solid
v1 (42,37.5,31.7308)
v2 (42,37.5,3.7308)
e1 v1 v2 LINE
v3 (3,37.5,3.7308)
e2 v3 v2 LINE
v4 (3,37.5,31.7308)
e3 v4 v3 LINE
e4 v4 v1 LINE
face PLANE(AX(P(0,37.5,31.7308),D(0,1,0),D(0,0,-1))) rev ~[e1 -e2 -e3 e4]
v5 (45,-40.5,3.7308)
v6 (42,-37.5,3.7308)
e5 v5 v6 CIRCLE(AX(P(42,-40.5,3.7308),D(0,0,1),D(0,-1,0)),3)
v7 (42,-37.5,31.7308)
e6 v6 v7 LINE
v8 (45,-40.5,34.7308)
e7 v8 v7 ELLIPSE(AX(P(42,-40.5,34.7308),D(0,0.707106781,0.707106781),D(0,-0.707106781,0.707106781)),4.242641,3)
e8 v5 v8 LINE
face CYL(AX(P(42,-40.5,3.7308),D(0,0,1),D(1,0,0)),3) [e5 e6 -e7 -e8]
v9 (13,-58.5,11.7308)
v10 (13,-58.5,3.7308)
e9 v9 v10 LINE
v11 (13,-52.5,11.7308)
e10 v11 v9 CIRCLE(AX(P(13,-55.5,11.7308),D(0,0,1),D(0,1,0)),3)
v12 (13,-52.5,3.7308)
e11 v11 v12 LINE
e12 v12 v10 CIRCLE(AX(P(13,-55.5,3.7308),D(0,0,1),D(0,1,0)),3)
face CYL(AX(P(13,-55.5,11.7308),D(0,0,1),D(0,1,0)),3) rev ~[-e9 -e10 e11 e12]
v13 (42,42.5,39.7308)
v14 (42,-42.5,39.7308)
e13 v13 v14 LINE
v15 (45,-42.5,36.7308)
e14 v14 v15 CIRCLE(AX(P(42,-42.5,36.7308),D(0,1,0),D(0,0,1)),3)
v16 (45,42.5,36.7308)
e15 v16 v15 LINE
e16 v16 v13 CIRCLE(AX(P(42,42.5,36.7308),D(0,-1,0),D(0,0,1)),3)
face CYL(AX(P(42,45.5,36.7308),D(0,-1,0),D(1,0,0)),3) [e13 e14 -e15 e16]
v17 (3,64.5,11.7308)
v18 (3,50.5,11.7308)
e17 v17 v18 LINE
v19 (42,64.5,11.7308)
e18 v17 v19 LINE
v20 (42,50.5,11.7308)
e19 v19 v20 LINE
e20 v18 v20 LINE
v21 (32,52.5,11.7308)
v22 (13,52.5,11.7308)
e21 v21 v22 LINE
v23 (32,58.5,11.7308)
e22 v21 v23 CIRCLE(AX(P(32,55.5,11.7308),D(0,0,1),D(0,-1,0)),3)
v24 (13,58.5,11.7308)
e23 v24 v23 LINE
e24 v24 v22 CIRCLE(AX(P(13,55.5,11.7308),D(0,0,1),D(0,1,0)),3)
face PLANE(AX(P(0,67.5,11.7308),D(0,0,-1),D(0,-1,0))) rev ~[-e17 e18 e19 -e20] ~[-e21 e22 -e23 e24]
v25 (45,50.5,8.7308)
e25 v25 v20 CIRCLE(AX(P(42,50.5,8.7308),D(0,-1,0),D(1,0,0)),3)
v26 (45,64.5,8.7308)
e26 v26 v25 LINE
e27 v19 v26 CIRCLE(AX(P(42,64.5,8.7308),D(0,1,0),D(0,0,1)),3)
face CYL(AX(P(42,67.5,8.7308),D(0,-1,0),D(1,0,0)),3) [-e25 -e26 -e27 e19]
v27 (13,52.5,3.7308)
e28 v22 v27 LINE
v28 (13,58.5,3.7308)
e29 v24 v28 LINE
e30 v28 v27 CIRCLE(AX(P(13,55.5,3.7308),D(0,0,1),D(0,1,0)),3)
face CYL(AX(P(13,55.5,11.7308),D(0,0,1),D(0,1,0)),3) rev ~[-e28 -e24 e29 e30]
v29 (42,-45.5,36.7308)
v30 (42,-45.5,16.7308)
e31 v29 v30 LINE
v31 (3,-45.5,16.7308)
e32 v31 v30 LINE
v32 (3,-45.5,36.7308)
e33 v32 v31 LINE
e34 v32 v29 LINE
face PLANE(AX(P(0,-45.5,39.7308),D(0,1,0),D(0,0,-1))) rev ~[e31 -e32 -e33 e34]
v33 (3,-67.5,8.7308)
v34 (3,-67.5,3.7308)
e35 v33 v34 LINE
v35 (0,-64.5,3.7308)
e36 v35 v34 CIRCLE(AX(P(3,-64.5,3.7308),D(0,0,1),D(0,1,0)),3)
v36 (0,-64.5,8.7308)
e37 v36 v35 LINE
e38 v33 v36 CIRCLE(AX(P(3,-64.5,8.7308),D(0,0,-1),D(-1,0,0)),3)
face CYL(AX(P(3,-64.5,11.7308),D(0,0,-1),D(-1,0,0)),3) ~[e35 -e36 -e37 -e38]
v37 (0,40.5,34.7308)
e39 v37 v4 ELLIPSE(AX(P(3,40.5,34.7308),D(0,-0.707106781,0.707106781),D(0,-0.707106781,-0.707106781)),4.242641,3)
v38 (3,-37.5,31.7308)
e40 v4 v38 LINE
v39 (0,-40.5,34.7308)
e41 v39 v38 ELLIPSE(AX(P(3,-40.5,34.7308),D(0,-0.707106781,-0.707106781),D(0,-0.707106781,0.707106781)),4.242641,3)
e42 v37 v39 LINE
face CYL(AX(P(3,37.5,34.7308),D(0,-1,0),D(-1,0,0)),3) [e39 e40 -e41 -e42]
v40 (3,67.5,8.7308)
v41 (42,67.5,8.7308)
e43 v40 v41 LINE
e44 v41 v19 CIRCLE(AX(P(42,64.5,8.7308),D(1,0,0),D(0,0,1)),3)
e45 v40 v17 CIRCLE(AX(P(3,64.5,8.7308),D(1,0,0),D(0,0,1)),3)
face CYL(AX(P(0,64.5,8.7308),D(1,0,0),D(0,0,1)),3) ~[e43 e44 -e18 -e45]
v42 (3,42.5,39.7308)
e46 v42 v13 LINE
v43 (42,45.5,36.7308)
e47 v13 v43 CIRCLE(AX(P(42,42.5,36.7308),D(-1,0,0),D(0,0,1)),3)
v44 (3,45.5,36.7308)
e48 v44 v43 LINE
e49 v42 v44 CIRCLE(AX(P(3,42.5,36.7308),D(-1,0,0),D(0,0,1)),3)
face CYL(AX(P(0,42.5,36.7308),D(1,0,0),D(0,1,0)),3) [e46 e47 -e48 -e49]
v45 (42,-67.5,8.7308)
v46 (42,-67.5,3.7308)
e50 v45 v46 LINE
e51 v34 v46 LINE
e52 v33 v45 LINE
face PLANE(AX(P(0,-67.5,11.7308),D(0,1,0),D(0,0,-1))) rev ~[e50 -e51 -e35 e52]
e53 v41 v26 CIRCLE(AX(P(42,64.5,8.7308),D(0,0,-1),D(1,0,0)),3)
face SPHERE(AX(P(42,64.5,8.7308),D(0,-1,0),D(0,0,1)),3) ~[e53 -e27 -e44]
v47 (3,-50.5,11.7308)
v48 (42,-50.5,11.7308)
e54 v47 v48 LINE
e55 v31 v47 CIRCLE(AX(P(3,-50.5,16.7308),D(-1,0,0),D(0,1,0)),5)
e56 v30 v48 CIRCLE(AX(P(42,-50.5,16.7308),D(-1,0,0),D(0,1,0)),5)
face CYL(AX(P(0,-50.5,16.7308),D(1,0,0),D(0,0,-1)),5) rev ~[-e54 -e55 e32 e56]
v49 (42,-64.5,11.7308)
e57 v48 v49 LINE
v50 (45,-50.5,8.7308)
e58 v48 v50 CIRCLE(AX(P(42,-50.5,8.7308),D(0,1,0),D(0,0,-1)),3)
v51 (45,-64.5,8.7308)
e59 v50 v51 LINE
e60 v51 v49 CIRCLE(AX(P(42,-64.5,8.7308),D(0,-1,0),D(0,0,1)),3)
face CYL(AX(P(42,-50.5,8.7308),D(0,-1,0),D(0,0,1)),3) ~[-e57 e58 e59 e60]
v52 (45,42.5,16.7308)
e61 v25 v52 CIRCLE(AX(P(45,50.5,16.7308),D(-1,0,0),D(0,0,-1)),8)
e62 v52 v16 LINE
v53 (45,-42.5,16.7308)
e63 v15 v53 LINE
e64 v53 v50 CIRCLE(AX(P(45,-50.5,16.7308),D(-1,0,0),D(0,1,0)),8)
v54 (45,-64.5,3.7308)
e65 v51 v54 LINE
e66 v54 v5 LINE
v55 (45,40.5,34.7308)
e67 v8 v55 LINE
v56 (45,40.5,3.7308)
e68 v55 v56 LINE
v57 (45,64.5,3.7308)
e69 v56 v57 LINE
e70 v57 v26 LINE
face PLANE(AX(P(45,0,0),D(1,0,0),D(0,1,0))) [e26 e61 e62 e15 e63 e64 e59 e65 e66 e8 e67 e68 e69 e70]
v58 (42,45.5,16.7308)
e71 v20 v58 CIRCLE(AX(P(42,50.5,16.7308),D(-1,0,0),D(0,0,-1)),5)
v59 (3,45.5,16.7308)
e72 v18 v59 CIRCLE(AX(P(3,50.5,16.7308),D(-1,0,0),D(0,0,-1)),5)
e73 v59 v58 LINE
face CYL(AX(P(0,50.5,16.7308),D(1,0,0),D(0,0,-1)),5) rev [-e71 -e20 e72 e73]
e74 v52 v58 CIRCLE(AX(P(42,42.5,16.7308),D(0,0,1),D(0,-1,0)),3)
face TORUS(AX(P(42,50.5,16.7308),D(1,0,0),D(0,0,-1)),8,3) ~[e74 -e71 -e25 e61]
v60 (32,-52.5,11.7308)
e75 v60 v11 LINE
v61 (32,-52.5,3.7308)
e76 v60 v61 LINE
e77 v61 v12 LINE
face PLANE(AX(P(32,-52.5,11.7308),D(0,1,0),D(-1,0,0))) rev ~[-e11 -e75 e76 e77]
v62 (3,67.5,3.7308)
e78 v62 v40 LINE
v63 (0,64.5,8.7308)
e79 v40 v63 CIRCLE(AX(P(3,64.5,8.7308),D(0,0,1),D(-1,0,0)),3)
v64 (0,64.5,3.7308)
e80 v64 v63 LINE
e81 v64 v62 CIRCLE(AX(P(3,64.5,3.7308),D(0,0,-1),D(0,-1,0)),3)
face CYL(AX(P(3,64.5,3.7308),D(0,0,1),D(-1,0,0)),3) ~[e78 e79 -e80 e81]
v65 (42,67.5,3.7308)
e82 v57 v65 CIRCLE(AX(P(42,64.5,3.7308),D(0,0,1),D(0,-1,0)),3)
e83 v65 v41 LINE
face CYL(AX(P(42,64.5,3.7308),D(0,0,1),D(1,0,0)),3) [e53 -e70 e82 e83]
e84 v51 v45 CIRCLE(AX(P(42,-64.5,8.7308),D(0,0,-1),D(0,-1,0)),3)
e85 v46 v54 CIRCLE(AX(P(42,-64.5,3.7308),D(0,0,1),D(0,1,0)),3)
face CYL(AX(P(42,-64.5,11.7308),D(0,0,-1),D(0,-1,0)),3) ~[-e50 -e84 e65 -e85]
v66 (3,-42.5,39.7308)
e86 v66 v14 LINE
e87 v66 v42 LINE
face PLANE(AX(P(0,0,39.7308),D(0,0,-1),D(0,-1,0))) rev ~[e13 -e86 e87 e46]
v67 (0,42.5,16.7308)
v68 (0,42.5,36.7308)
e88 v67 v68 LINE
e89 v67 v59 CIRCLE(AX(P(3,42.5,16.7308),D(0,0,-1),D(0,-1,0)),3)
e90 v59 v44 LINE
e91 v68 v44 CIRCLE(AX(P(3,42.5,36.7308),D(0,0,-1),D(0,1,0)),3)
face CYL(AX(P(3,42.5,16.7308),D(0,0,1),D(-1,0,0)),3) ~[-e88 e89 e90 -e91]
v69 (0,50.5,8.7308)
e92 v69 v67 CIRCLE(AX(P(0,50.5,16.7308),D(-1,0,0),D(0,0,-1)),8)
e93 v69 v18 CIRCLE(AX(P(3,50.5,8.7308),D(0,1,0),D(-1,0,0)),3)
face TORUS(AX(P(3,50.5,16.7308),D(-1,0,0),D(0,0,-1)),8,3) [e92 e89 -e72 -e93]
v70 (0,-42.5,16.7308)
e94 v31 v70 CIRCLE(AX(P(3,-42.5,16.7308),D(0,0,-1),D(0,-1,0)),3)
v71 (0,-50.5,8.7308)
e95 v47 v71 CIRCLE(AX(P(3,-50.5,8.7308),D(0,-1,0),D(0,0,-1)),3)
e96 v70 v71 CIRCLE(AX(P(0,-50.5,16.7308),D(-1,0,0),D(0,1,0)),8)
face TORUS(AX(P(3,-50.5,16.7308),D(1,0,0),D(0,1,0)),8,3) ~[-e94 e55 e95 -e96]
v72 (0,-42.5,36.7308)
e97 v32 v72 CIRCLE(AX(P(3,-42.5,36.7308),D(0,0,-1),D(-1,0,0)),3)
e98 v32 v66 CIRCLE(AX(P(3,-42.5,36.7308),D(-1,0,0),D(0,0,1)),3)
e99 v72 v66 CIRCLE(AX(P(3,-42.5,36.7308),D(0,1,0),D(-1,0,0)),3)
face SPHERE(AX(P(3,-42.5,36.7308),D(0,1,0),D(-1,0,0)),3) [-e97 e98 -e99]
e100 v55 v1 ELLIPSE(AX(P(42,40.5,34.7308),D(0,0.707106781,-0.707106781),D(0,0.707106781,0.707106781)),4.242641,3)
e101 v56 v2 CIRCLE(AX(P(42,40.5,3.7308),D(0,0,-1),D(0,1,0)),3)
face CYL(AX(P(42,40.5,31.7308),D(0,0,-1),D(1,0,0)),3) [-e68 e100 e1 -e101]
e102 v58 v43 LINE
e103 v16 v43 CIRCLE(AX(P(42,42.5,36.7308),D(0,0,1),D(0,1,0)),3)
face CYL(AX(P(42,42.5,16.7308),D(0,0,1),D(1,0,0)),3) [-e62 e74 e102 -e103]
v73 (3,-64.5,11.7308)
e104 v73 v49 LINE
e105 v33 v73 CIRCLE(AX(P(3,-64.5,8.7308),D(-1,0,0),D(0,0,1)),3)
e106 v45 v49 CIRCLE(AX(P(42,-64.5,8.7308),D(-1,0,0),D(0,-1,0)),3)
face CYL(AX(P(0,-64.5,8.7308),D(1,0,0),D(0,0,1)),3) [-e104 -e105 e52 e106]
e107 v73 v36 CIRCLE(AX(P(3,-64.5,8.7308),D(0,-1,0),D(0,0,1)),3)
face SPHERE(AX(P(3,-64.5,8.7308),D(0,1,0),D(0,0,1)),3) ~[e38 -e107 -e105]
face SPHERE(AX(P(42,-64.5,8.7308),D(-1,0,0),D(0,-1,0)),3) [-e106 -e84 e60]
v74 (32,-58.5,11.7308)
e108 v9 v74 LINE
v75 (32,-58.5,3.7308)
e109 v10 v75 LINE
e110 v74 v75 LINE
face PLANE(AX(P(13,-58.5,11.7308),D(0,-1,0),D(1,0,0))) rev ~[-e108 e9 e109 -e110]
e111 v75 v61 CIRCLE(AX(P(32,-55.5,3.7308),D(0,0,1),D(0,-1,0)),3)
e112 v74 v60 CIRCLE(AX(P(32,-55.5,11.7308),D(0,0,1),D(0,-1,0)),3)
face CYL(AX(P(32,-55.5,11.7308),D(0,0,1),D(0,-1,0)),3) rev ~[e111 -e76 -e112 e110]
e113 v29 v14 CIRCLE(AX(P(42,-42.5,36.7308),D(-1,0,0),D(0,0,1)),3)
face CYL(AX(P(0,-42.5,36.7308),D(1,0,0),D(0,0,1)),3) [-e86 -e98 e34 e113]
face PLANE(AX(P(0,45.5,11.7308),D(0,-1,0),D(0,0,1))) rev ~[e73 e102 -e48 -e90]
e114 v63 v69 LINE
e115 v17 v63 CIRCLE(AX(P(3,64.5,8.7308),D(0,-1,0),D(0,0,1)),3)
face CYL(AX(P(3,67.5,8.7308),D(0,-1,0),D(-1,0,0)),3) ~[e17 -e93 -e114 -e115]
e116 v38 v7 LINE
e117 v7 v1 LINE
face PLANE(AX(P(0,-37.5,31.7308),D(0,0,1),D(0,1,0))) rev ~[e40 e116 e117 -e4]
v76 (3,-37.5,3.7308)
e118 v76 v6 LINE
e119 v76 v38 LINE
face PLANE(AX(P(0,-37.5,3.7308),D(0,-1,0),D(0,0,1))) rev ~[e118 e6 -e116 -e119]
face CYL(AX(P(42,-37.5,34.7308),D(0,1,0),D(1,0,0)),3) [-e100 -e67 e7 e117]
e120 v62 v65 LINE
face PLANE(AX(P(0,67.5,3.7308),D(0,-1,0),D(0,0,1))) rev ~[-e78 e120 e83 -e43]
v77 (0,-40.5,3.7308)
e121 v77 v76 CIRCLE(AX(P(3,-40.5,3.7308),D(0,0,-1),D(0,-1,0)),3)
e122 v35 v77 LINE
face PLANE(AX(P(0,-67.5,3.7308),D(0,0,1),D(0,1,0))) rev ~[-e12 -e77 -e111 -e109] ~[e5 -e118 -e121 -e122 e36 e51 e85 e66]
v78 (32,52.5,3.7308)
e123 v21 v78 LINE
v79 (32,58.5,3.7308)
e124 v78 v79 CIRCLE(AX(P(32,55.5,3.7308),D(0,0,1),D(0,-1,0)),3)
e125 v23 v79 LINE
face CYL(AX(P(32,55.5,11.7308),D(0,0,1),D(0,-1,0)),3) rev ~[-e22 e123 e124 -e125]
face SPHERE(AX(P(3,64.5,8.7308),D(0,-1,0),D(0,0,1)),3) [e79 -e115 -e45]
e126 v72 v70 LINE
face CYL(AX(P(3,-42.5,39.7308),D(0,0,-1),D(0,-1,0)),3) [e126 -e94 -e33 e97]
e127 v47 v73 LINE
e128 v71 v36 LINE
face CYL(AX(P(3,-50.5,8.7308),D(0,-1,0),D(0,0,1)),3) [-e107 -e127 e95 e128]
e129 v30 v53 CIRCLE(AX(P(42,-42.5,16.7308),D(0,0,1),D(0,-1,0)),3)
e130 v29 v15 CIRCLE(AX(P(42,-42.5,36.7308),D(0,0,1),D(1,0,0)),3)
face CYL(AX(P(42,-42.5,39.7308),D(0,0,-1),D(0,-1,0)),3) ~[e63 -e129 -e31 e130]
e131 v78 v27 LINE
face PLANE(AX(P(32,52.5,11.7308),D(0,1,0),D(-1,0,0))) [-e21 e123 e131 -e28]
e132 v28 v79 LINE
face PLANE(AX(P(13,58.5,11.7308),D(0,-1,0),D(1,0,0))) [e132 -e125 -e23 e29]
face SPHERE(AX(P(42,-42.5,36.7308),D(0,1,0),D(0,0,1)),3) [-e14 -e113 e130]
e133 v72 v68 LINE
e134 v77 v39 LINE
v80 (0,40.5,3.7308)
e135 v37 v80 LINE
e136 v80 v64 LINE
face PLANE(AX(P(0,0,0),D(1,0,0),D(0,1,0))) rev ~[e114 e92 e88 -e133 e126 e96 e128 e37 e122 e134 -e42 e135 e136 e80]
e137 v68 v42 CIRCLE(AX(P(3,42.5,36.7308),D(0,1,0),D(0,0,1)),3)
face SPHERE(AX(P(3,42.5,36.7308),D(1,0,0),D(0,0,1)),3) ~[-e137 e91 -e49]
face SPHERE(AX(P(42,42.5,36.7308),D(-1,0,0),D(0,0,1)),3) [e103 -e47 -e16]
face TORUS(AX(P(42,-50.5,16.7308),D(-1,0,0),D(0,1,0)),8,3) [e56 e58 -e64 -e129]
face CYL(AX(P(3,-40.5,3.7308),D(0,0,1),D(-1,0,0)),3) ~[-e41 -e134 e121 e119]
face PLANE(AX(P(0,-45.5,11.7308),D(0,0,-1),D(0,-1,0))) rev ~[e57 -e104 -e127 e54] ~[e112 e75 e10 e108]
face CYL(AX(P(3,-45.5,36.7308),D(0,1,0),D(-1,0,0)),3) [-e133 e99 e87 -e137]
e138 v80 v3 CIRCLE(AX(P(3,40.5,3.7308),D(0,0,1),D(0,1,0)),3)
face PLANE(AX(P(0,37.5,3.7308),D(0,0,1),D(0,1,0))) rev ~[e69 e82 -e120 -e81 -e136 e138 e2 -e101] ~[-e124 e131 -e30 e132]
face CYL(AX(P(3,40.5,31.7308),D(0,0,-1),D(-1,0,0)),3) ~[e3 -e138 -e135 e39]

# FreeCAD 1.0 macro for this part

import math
import FreeCAD as App
import Part
import Sketcher
from FreeCAD import Vector


def edges_at(feature, points):
    """Names of the edges that pass closest to the given points."""
    edges = feature.Shape.Edges
    near = lambda p: min(range(len(edges)), key=lambda i: edges[i].distToShape(Part.Vertex(*p))[0])
    return sorted({f"Edge{near(p) + 1}" for p in points})


def add_polygon(sketch, points):
    """Adds a closed chain of lines whose ends are joined by coincident constraints."""
    first, n = sketch.GeometryCount, len(points)
    for a, b in zip(points, points[1:] + points[:1]):
        sketch.addGeometry(Part.LineSegment(App.Vector(*a, 0), App.Vector(*b, 0)), False)
    for i in range(n):
        sketch.addConstraint(Sketcher.Constraint("Coincident", first + i, 2, first + (i + 1) % n, 1))

doc = App.newDocument("Part")
body = doc.addObject("PartDesign::Body", "Body")

# Sketch on YZ plane
sketch1 = doc.addObject("Sketcher::SketchObject", "Sketch")
body.addObject(sketch1)
sketch1.AttachmentSupport = (doc.YZ_Plane, [""])
sketch1.MapMode = "FlatFace"
add_polygon(sketch1, [(-67.5, 11.7308), (-67.5, 3.7308), (-37.5, 3.7308), (-37.5, 31.7308), (37.5, 31.7308), (37.5, 3.7308), (67.5, 3.7308), (67.5, 11.7308), (45.5, 11.7308), (45.5, 39.7308), (-45.5, 39.7308), (-45.5, 11.7308)])  # lines 0-11
sketch1.addConstraint(Sketcher.Constraint("Vertical", 0))
sketch1.addConstraint(Sketcher.Constraint("Horizontal", 1))
sketch1.addConstraint(Sketcher.Constraint("Vertical", 2))
sketch1.addConstraint(Sketcher.Constraint("Horizontal", 3))
sketch1.addConstraint(Sketcher.Constraint("Vertical", 4))
sketch1.addConstraint(Sketcher.Constraint("Horizontal", 5))
sketch1.addConstraint(Sketcher.Constraint("Vertical", 6))
sketch1.addConstraint(Sketcher.Constraint("Horizontal", 7))
sketch1.addConstraint(Sketcher.Constraint("Vertical", 8))
sketch1.addConstraint(Sketcher.Constraint("Horizontal", 9))
sketch1.addConstraint(Sketcher.Constraint("Vertical", 10))
sketch1.addConstraint(Sketcher.Constraint("Horizontal", 11))
sketch1.addConstraint(Sketcher.Constraint("Symmetric", 1, 2, 4, 2, -2))
sketch1.addConstraint(Sketcher.Constraint("Symmetric", 7, 2, 10, 2, -2))
sketch1.addConstraint(Sketcher.Constraint("Equal", 1, 5))
sketch1.addConstraint(Sketcher.Constraint("Equal", 4, 8))
sketch1.addConstraint(Sketcher.Constraint("DistanceX", 1, 1, 1, 2, 30.0))
sketch1.addConstraint(Sketcher.Constraint("DistanceX", 3, 1, 3, 2, 75.0))
sketch1.addConstraint(Sketcher.Constraint("DistanceY", 0, 2, 0, 1, 8.0))
sketch1.addConstraint(Sketcher.Constraint("DistanceY", 2, 1, 2, 2, 28.0))
sketch1.addConstraint(Sketcher.Constraint("DistanceX", 4, 2, 7, 2, 8.0))
sketch1.addConstraint(Sketcher.Constraint("DistanceY", -1, 1, 0, 2, 3.7308))
pad1 = doc.addObject("PartDesign::Pad", "Pad")
body.addObject(pad1)
pad1.Profile = sketch1
pad1.Length = 45

# Sketch on XY plane
sketch2 = doc.addObject("Sketcher::SketchObject", "Sketch001")
body.addObject(sketch2)
sketch2.AttachmentSupport = (doc.XY_Plane, [""])
sketch2.MapMode = "FlatFace"
sketch2.AttachmentOffset = App.Placement(Vector(0, 0, 11.7308), App.Rotation())
sketch2.addGeometry(Part.LineSegment(Vector(13, 52.5, 0), Vector(32, 52.5, 0)), False)
sketch2.addGeometry(Part.ArcOfCircle(Part.Circle(Vector(32, 55.5, 0), Vector(0, 0, 1), 3), math.radians(-90), math.radians(90)), False)
sketch2.addGeometry(Part.LineSegment(Vector(32, 58.5, 0), Vector(13, 58.5, 0)), False)
sketch2.addGeometry(Part.ArcOfCircle(Part.Circle(Vector(13, 55.5, 0), Vector(0, 0, 1), 3), math.radians(90), math.radians(270)), False)
sketch2.addGeometry(Part.ArcOfCircle(Part.Circle(Vector(32, -55.5, 0), Vector(0, 0, 1), 3), math.radians(-90), math.radians(90)), False)
sketch2.addGeometry(Part.LineSegment(Vector(32, -52.5, 0), Vector(13, -52.5, 0)), False)
sketch2.addGeometry(Part.ArcOfCircle(Part.Circle(Vector(13, -55.5, 0), Vector(0, 0, 1), 3), math.radians(90), math.radians(270)), False)
sketch2.addGeometry(Part.LineSegment(Vector(13, -58.5, 0), Vector(32, -58.5, 0)), False)
sketch2.addConstraint(Sketcher.Constraint("Tangent", 0, 2, 1, 1))
sketch2.addConstraint(Sketcher.Constraint("Tangent", 1, 2, 2, 1))
sketch2.addConstraint(Sketcher.Constraint("Tangent", 2, 2, 3, 1))
sketch2.addConstraint(Sketcher.Constraint("Tangent", 3, 2, 0, 1))
sketch2.addConstraint(Sketcher.Constraint("Tangent", 4, 2, 5, 1))
sketch2.addConstraint(Sketcher.Constraint("Tangent", 5, 2, 6, 1))
sketch2.addConstraint(Sketcher.Constraint("Tangent", 6, 2, 7, 1))
sketch2.addConstraint(Sketcher.Constraint("Tangent", 7, 2, 4, 1))
sketch2.addConstraint(Sketcher.Constraint("Horizontal", 0))
sketch2.addConstraint(Sketcher.Constraint("Horizontal", 2))
sketch2.addConstraint(Sketcher.Constraint("Horizontal", 5))
sketch2.addConstraint(Sketcher.Constraint("Horizontal", 7))
sketch2.addConstraint(Sketcher.Constraint("Equal", 3, 4))
sketch2.addConstraint(Sketcher.Constraint("Symmetric", 1, 3, 4, 3, -1))
sketch2.addConstraint(Sketcher.Constraint("Vertical", 3, 3, 6, 3))
sketch2.addConstraint(Sketcher.Constraint("Radius", 1, 3.0))
sketch2.addConstraint(Sketcher.Constraint("DistanceX", 0, 1, 0, 2, 19.0))
sketch2.addConstraint(Sketcher.Constraint("DistanceX", -1, 1, 1, 3, 32.0))
sketch2.addConstraint(Sketcher.Constraint("DistanceY", 4, 3, 1, 3, 111.0))
pocket1 = doc.addObject("PartDesign::Pocket", "Pocket")
body.addObject(pocket1)
pocket1.Profile = sketch2
pocket1.Type = "ThroughAll"
doc.recompute()

fillet = doc.addObject("PartDesign::Fillet", "Fillet")
body.addObject(fillet)
fillet.Base = (pocket1, edges_at(pocket1, [(22.5, 45.5, 11.731), (22.5, -45.5, 11.731)]))
fillet.Radius = 5
doc.recompute()

fillet2 = doc.addObject("PartDesign::Fillet", "Fillet001")
body.addObject(fillet2)
fillet2.Base = (fillet, edges_at(fillet, [
    (22.5, 45.5, 39.731),
    (0, 0, 39.731),
    (0, 37.5, 17.731),
    (0, 0, 31.731),
    (0, -37.5, 17.731),
    (0, -59, 11.731),
    (0, -45.5, 28.231),
    (45, 0, 39.731),
    (45, 59, 11.731),
    (45, 45.5, 28.231),
    (0, 59, 11.731),
    (0, 45.5, 28.231),
    (22.5, 67.5, 11.731),
    (45, 67.5, 7.731),
    (0, 67.5, 7.731),
    (22.5, -45.5, 39.731),
    (22.5, -67.5, 11.731),
    (0, -67.5, 7.731),
    (45, -67.5, 7.731),
    (45, -59, 11.731),
    (45, -45.5, 28.231),
    (45, -37.5, 17.731),
    (45, 0, 31.731),
    (45, 37.5, 17.731),
]))
fillet2.Radius = 3

doc.recompute()
